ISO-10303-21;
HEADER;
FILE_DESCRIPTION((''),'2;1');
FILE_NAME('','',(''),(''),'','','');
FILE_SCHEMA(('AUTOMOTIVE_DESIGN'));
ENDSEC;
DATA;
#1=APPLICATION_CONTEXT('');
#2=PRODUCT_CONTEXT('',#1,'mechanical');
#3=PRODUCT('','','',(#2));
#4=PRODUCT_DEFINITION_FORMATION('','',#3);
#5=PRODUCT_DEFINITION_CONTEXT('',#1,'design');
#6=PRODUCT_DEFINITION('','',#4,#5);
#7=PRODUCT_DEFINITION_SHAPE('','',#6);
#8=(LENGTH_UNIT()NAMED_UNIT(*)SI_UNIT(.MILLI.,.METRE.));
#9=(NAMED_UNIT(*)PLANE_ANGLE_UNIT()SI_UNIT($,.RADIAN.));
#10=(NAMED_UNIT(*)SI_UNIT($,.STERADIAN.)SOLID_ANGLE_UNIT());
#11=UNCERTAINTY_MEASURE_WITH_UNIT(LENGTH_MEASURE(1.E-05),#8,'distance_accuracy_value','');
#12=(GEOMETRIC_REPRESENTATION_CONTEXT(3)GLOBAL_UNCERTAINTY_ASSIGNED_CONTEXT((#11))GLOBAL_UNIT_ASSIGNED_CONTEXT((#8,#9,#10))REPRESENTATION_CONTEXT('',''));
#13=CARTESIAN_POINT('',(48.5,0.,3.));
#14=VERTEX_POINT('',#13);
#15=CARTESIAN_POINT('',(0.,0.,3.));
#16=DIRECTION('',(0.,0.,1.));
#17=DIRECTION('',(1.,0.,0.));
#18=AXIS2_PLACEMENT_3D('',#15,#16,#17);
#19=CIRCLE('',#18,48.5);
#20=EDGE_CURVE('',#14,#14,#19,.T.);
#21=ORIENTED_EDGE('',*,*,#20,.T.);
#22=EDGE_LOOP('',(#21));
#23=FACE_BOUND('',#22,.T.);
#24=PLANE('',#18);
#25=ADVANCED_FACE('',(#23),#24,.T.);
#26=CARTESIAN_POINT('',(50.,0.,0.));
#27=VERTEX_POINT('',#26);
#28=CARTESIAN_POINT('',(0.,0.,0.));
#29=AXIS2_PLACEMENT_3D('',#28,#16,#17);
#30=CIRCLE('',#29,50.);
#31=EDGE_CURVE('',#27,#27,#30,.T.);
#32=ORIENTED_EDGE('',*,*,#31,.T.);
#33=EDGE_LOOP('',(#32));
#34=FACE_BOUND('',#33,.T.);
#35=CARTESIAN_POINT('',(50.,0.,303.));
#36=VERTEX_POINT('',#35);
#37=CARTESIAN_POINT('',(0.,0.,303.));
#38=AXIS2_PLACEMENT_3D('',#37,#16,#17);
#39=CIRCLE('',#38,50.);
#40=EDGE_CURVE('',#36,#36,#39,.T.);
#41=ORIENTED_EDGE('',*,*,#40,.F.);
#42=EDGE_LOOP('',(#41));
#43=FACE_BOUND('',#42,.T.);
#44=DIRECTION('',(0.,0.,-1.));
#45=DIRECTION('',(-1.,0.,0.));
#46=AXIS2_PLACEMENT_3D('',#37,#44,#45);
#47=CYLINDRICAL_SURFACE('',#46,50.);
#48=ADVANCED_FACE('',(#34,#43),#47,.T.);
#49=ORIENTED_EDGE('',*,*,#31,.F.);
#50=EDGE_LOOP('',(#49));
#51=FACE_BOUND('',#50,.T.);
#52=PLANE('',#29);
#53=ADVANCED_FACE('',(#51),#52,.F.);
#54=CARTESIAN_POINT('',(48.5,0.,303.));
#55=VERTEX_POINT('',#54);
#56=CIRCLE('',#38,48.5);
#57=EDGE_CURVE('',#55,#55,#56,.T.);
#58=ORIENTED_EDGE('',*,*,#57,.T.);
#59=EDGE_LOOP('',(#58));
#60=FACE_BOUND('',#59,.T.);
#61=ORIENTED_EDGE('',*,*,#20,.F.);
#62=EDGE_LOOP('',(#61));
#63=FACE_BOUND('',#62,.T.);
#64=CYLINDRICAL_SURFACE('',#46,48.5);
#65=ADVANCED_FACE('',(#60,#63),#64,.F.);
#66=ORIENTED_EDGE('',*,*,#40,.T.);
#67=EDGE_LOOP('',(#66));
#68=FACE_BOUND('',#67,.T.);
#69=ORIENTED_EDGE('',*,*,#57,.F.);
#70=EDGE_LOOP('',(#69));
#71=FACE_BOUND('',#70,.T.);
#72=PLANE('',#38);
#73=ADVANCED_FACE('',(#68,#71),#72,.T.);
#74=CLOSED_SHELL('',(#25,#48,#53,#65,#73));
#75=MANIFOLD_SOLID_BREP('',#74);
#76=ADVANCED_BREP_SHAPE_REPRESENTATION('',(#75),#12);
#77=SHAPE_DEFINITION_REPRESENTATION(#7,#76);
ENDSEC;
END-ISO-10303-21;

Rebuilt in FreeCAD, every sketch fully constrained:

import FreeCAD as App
import Part
import Sketcher
from FreeCAD import Vector
Q = App.Units.Quantity

doc = App.newDocument("Part")
body = doc.addObject("PartDesign::Body", "Body")

# Sketch on XY plane
sketch1 = body.newObject("Sketcher::SketchObject", "Sketch")
sketch1.AttachmentSupport = (doc.getObject("XY_Plane"), [""])
sketch1.MapMode = "FlatFace"
sketch1.addGeometry(Part.Circle(Vector(0, 0, 0), Vector(0, 0, 1), 50), False)
sketch1.addGeometry(Part.Circle(Vector(0, 0, 0), Vector(0, 0, 1), 48), False)
sketch1.addConstraint(Sketcher.Constraint("Coincident", 0, 3, -1, 1))
sketch1.addConstraint(Sketcher.Constraint("Coincident", 1, 3, -1, 1))
sketch1.addConstraint(Sketcher.Constraint("Diameter", 0, Q("100 mm")))
sketch1.addConstraint(Sketcher.Constraint("Diameter", 1, Q("97 mm")))
pad1 = body.newObject("PartDesign::Pad", "Pad")
pad1.Profile = sketch1
pad1.Length = 303

# Sketch on XY plane
sketch2 = body.newObject("Sketcher::SketchObject", "Sketch001")
sketch2.AttachmentSupport = (doc.getObject("XY_Plane"), [""])
sketch2.MapMode = "FlatFace"
sketch2.addGeometry(Part.Circle(Vector(0, 0, 0), Vector(0, 0, 1), 48), False)
sketch2.addConstraint(Sketcher.Constraint("Coincident", 0, 3, -1, 1))
sketch2.addConstraint(Sketcher.Constraint("Diameter", 0, Q("97 mm")))
pad2 = body.newObject("PartDesign::Pad", "Pad001")
pad2.Profile = sketch2
pad2.Length = 3

doc.recompute()
